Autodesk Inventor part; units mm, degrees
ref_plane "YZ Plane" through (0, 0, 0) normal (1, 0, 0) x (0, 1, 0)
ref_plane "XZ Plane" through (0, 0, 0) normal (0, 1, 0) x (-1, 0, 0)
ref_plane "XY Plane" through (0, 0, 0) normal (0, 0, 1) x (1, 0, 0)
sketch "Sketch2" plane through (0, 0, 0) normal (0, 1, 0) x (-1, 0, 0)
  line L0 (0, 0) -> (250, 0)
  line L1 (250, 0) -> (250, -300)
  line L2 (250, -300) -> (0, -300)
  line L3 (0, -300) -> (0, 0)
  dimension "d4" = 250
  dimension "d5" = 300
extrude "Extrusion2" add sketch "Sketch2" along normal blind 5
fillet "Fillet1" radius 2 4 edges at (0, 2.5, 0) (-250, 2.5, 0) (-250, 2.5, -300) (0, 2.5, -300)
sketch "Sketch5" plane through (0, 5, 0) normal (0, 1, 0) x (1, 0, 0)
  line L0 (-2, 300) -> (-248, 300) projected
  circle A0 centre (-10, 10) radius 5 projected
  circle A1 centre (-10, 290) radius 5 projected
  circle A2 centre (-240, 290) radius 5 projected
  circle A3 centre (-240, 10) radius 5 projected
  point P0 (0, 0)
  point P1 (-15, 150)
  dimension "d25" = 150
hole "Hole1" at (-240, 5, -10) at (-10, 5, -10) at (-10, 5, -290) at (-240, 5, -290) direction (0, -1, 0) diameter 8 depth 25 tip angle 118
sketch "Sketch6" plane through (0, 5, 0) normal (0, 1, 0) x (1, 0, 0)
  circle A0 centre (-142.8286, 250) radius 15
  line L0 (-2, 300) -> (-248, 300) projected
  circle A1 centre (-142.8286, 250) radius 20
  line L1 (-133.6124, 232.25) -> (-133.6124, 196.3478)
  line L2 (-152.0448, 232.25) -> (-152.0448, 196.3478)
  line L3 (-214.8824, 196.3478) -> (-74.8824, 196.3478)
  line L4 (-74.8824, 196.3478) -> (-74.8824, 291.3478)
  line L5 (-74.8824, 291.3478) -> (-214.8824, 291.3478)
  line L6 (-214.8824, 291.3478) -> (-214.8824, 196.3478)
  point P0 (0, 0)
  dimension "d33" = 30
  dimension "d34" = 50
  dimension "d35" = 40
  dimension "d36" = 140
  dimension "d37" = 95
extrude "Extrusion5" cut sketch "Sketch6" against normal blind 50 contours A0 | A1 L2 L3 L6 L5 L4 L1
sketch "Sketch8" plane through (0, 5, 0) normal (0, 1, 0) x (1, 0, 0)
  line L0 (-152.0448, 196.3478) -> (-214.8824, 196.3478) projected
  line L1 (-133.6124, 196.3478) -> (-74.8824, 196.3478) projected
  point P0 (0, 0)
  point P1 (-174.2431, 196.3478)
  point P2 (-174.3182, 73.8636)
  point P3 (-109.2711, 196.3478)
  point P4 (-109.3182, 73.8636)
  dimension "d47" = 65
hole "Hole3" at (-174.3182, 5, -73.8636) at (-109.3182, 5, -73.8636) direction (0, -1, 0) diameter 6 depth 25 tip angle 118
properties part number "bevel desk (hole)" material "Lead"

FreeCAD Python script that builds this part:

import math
import FreeCAD as App
import Part
import Sketcher

V = App.Vector
Q = App.Units.Quantity


def edges_at(feature, points):
    """Names of the edges that pass closest to the given points."""
    edges = feature.Shape.Edges
    near = lambda p: min(range(len(edges)), key=lambda i: edges[i].distToShape(Part.Vertex(*p))[0])
    return sorted({f"Edge{near(p) + 1}" for p in points})

doc = App.newDocument("Part")
body = doc.addObject("PartDesign::Body", "Body")

# Sketch on XZ plane
sketch1 = body.newObject("Sketcher::SketchObject", "Sketch")
sketch1.AttachmentSupport = (doc.getObject("XZ_Plane"), [""])
sketch1.MapMode = "FlatFace"
sketch1.addGeometry([
    Part.LineSegment(V(-250, 0, 0), V(0, 0, 0)),
    Part.LineSegment(V(0, 0, 0), V(0, -300, 0)),
    Part.LineSegment(V(0, -300, 0), V(-250, -300, 0)),
    Part.LineSegment(V(-250, -300, 0), V(-250, 0, 0)),
], False)
sketch1.addConstraint([
    Sketcher.Constraint("Coincident", 0, 2, 1, 1),
    Sketcher.Constraint("Coincident", 1, 2, 2, 1),
    Sketcher.Constraint("Coincident", 2, 2, 3, 1),
    Sketcher.Constraint("Coincident", 3, 2, 0, 1),
    Sketcher.Constraint("Horizontal", 0),
    Sketcher.Constraint("Vertical", 1),
    Sketcher.Constraint("Horizontal", 2),
    Sketcher.Constraint("Vertical", 3),
    Sketcher.Constraint("Coincident", 0, 2, -1, 1),
    Sketcher.Constraint("DistanceX", 0, 1, 0, 2, Q("250 mm")),
    Sketcher.Constraint("DistanceY", 1, 2, 1, 1, Q("300 mm")),
])
pad1 = body.newObject("PartDesign::Pad", "Pad")
pad1.Profile = sketch1
pad1.Length = 5
pad1.Reversed = True
doc.recompute()

fillet = body.newObject("PartDesign::Fillet", "Fillet")
fillet.Base = (pad1, edges_at(pad1, [
    (0, 2.5, 0),
    (-250, 2.5, 0),
    (-250, 2.5, -300),
    (0, 2.5, -300),
]))
fillet.Radius = 2

# Sketch on XZ plane
sketch2 = body.newObject("Sketcher::SketchObject", "Sketch001")
sketch2.AttachmentSupport = (doc.getObject("XZ_Plane"), [""])
sketch2.MapMode = "FlatFace"
sketch2.AttachmentOffset = App.Placement(V(0, 0, -5), App.Rotation())
sketch2.addGeometry([
    Part.Circle(V(-240, -10, 0), V(0, 0, 1), 4),
    Part.Circle(V(-10, -10, 0), V(0, 0, 1), 4),
    Part.Circle(V(-10, -290, 0), V(0, 0, 1), 4),
    Part.Circle(V(-240, -290, 0), V(0, 0, 1), 4),
], False)
sketch2.addConstraint([
    Sketcher.Constraint("Equal", 0, 1),
    Sketcher.Constraint("Equal", 1, 2),
    Sketcher.Constraint("Equal", 2, 3),
    Sketcher.Constraint("Horizontal", 0, 3, 1, 3),
    Sketcher.Constraint("Horizontal", 2, 3, 3, 3),
    Sketcher.Constraint("Vertical", 1, 3, 2, 3),
    Sketcher.Constraint("Vertical", 0, 3, 3, 3),
    Sketcher.Constraint("Diameter", 0, Q("8 mm")),
    Sketcher.Constraint("DistanceX", 0, 3, -1, 1, Q("240 mm")),
    Sketcher.Constraint("DistanceY", 0, 3, -1, 1, Q("10 mm")),
    Sketcher.Constraint("DistanceX", 1, 3, -1, 1, Q("10 mm")),
    Sketcher.Constraint("DistanceY", 2, 3, -1, 1, Q("290 mm")),
])
doc.recompute()
hole = body.newObject("PartDesign::Hole", "Hole")
hole.Profile = sketch2
hole.ThreadType = "None"
hole.Diameter = 8
hole.DepthType = "Dimension"
hole.Depth = 25
hole.DrillPoint = "Angled"
hole.DrillPointAngle = 118
hole.Reversed = True

# Sketch on XZ plane
sketch3 = body.newObject("Sketcher::SketchObject", "Sketch002")
sketch3.AttachmentSupport = (doc.getObject("XZ_Plane"), [""])
sketch3.MapMode = "FlatFace"
sketch3.AttachmentOffset = App.Placement(V(0, 0, -5), App.Rotation())
sketch3.addGeometry([
    Part.Circle(V(-143, -250, 0), V(0, 0, 1), 15),  # 0
    Part.ArcOfCircle(Part.Circle(V(-143, -250, 0), V(0, 0, 1), 20), math.radians(117), math.radians(423)),  # 1
    Part.LineSegment(V(-134, -232, 0), V(-134, -196, 0)),  # 2
    Part.LineSegment(V(-134, -196, 0), V(-75, -196, 0)),  # 3
    Part.LineSegment(V(-75, -196, 0), V(-75, -291, 0)),  # 4
    Part.LineSegment(V(-75, -291, 0), V(-215, -291, 0)),  # 5
    Part.LineSegment(V(-215, -291, 0), V(-215, -196, 0)),  # 6
    Part.LineSegment(V(-215, -196, 0), V(-152, -196, 0)),  # 7
    Part.LineSegment(V(-152, -196, 0), V(-152, -232, 0)),  # 8
], False)
sketch3.addConstraint([
    Sketcher.Constraint("Coincident", 1, 2, 2, 1),
    Sketcher.Constraint("Coincident", 2, 2, 3, 1),
    Sketcher.Constraint("Coincident", 3, 2, 4, 1),
    Sketcher.Constraint("Coincident", 4, 2, 5, 1),
    Sketcher.Constraint("Coincident", 5, 2, 6, 1),
    Sketcher.Constraint("Coincident", 6, 2, 7, 1),
    Sketcher.Constraint("Coincident", 7, 2, 8, 1),
    Sketcher.Constraint("Coincident", 8, 2, 1, 1),
    Sketcher.Constraint("Vertical", 2),
    Sketcher.Constraint("Horizontal", 3),
    Sketcher.Constraint("Vertical", 4),
    Sketcher.Constraint("Horizontal", 5),
    Sketcher.Constraint("Vertical", 6),
    Sketcher.Constraint("Horizontal", 7),
    Sketcher.Constraint("Vertical", 8),
    Sketcher.Constraint("Coincident", 1, 3, 0, 3),
    Sketcher.Constraint("Horizontal", 3, 2, 6, 2),
    Sketcher.Constraint("Horizontal", 1, 2, 8, 2),
    Sketcher.Constraint("Diameter", 0, Q("30 mm")),
    Sketcher.Constraint("Radius", 1, Q("20 mm")),
    Sketcher.Constraint("DistanceX", 5, 2, 5, 1, Q("140 mm")),
    Sketcher.Constraint("DistanceY", 4, 2, 4, 1, Q("95 mm")),
    Sketcher.Constraint("DistanceY", 0, 3, -1, 1, Q("250 mm")),
    Sketcher.Constraint("DistanceX", 3, 1, 3, 2, Q("58.73 mm")),
    Sketcher.Constraint("DistanceY", 1, 2, -1, 1, Q("232.25 mm")),
    Sketcher.Constraint("DistanceY", 2, 1, 2, 2, Q("35.9022 mm")),
    Sketcher.Constraint("DistanceX", 0, 3, -1, 1, Q("142.8286 mm")),
])
pocket1 = body.newObject("PartDesign::Pocket", "Pocket")
pocket1.Profile = sketch3
pocket1.Length = 50
pocket1.Reversed = True

# Sketch on XZ plane
sketch4 = body.newObject("Sketcher::SketchObject", "Sketch003")
sketch4.AttachmentSupport = (doc.getObject("XZ_Plane"), [""])
sketch4.MapMode = "FlatFace"
sketch4.AttachmentOffset = App.Placement(V(0, 0, -5), App.Rotation())
sketch4.addGeometry([
    Part.Circle(V(-174.3, -73.9, 0), V(0, 0, 1), 3),
    Part.Circle(V(-109.3, -73.9, 0), V(0, 0, 1), 3),
], False)
sketch4.addConstraint([
    Sketcher.Constraint("Equal", 0, 1),
    Sketcher.Constraint("Horizontal", 0, 3, 1, 3),
    Sketcher.Constraint("Diameter", 0, Q("6 mm")),
    Sketcher.Constraint("DistanceX", 0, 3, 1, 3, Q("65 mm")),
    Sketcher.Constraint("DistanceX", 0, 3, -1, 1, Q("174.3182 mm")),
    Sketcher.Constraint("DistanceY", 0, 3, -1, 1, Q("73.8636 mm")),
])
doc.recompute()
hole2 = body.newObject("PartDesign::Hole", "Hole001")
hole2.Profile = sketch4
hole2.ThreadType = "None"
hole2.Diameter = 6
hole2.DepthType = "Dimension"
hole2.Depth = 25
hole2.DrillPoint = "Angled"
hole2.DrillPointAngle = 118
hole2.Reversed = True

doc.recompute()
